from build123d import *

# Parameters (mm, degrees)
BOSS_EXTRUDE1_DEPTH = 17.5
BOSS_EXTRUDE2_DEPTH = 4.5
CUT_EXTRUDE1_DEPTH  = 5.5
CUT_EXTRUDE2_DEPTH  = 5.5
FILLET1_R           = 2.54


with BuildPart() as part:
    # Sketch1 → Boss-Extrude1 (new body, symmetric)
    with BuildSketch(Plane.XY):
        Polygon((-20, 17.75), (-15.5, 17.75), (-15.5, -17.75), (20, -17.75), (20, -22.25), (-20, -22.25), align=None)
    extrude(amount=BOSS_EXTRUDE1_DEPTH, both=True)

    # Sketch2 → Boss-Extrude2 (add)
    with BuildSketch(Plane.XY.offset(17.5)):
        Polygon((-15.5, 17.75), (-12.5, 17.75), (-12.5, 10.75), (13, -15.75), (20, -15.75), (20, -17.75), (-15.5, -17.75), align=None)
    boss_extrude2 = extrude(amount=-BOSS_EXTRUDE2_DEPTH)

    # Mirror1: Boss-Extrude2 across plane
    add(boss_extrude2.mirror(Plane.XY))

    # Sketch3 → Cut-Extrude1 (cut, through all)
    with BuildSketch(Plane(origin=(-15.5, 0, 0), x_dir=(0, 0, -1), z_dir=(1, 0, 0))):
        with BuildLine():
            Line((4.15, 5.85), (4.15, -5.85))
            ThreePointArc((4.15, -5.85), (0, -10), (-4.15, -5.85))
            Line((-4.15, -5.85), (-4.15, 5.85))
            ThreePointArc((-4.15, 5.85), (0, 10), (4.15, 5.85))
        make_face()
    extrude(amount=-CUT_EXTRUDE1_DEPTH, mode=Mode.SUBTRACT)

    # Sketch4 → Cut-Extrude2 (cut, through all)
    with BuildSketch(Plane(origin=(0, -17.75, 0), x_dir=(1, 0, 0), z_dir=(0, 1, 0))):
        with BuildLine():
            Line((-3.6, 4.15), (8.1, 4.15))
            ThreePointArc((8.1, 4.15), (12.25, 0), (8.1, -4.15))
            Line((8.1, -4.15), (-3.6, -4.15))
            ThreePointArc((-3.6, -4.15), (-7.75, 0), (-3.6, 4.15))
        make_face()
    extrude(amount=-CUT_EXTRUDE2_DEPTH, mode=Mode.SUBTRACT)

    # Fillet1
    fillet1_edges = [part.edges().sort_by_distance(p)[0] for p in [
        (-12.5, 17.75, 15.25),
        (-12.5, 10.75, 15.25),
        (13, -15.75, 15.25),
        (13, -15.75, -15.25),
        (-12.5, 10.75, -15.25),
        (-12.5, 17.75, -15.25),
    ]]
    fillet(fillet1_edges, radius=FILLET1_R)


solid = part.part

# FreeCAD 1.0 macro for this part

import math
import FreeCAD as App
import Part
import Sketcher

V = App.Vector
Q = App.Units.Quantity


def edges_at(feature, points):
    """Names of the edges that pass closest to the given points."""
    edges = feature.Shape.Edges
    near = lambda p: min(range(len(edges)), key=lambda i: edges[i].distToShape(Part.Vertex(*p))[0])
    return sorted({f"Edge{near(p) + 1}" for p in points})


def add_polygon(sketch, points):
    """Adds a closed chain of lines whose ends are joined by coincident constraints."""
    first, n = sketch.GeometryCount, len(points)
    for a, b in zip(points, points[1:] + points[:1]):
        sketch.addGeometry(Part.LineSegment(App.Vector(*a, 0), App.Vector(*b, 0)), False)
    for i in range(n):
        sketch.addConstraint(Sketcher.Constraint("Coincident", first + i, 2, first + (i + 1) % n, 1))

doc = App.newDocument("Part")
body = doc.addObject("PartDesign::Body", "Body")

# Sketch on XY plane
sketch1 = doc.addObject("Sketcher::SketchObject", "Sketch")
body.addObject(sketch1)
sketch1.AttachmentSupport = (doc.XY_Plane, [""])
sketch1.MapMode = "FlatFace"
add_polygon(sketch1, [(-15.5, 17.8), (-20, 17.8), (-20, -22.2), (20, -22.2), (20, -17.8), (-15.5, -17.8)])  # lines 0-5
sketch1.addConstraint(Sketcher.Constraint("Horizontal", 0))
sketch1.addConstraint(Sketcher.Constraint("Vertical", 1))
sketch1.addConstraint(Sketcher.Constraint("Horizontal", 2))
sketch1.addConstraint(Sketcher.Constraint("Vertical", 3))
sketch1.addConstraint(Sketcher.Constraint("Horizontal", 4))
sketch1.addConstraint(Sketcher.Constraint("Vertical", 5))
sketch1.addConstraint(Sketcher.Constraint("Symmetric", 0, 2, 3, 2, -1, 1))
sketch1.addConstraint(Sketcher.Constraint("Equal", 2, 1))
sketch1.addConstraint(Sketcher.Constraint("Equal", 0, 3))
sketch1.addConstraint(Sketcher.Constraint("DistanceX", 2, 1, 2, 2, Q("40 mm")))
sketch1.addConstraint(Sketcher.Constraint("DistanceX", 0, 2, 0, 1, Q("4.5 mm")))
pad1 = doc.addObject("PartDesign::Pad", "Pad")
body.addObject(pad1)
pad1.Profile = sketch1
pad1.Length = 35
pad1.Midplane = True

# Sketch on XY plane
sketch2 = doc.addObject("Sketcher::SketchObject", "Sketch001")
body.addObject(sketch2)
sketch2.AttachmentSupport = (doc.XY_Plane, [""])
sketch2.MapMode = "FlatFace"
sketch2.AttachmentOffset = App.Placement(V(0, 0, 17.5), App.Rotation())
add_polygon(sketch2, [(-12.5, 17.8), (-15.5, 17.8), (-15.5, -17.8), (20, -17.8), (20, -15.8), (13, -15.8), (-12.5, 10.8)])  # lines 0-6
sketch2.addConstraint(Sketcher.Constraint("Horizontal", 0))
sketch2.addConstraint(Sketcher.Constraint("Vertical", 1))
sketch2.addConstraint(Sketcher.Constraint("Horizontal", 2))
sketch2.addConstraint(Sketcher.Constraint("Vertical", 3))
sketch2.addConstraint(Sketcher.Constraint("Horizontal", 4))
sketch2.addConstraint(Sketcher.Constraint("Vertical", 6))
sketch2.addConstraint(Sketcher.Constraint("Equal", 2, 1))
sketch2.addConstraint(Sketcher.Constraint("Equal", 4, 6))
sketch2.addConstraint(Sketcher.Constraint("DistanceX", 0, 2, 0, 1, Q("3 mm")))
sketch2.addConstraint(Sketcher.Constraint("DistanceX", 4, 2, 4, 1, Q("7 mm")))
sketch2.addConstraint(Sketcher.Constraint("DistanceY", 3, 1, 3, 2, Q("2 mm")))
sketch2.addConstraint(Sketcher.Constraint("DistanceX", 2, 1, 2, 2, Q("35.5 mm")))
sketch2.addConstraint(Sketcher.Constraint("DistanceX", -1, 1, 2, 2, Q("20 mm")))
sketch2.addConstraint(Sketcher.Constraint("DistanceY", -1, 1, 0, 2, Q("17.75 mm")))
pad2 = doc.addObject("PartDesign::Pad", "Pad001")
body.addObject(pad2)
pad2.Profile = sketch2
pad2.Length = 4.5
pad2.Reversed = True
doc.recompute()

mirrored = doc.addObject("PartDesign::Mirrored", "Mirrored")
body.addObject(mirrored)
mirrored.Originals = [pad2]
mirrored.MirrorPlane = (doc.XY_Plane, [""])
body.Tip = mirrored

# Sketch on YZ plane
sketch3 = doc.addObject("Sketcher::SketchObject", "Sketch002")
body.addObject(sketch3)
sketch3.AttachmentSupport = (doc.YZ_Plane, [""])
sketch3.MapMode = "FlatFace"
sketch3.AttachmentOffset = App.Placement(V(0, 0, -15.5), App.Rotation())
sketch3.addGeometry(Part.LineSegment(V(-5.8, -4.2, 0), V(5.8, -4.2, 0)), False)
sketch3.addGeometry(Part.ArcOfCircle(Part.Circle(V(5.8, 0, 0), V(0, 0, 1), 4.2), math.radians(-90), math.radians(90)), False)
sketch3.addGeometry(Part.LineSegment(V(5.8, 4.2, 0), V(-5.8, 4.2, 0)), False)
sketch3.addGeometry(Part.ArcOfCircle(Part.Circle(V(-5.8, 0, 0), V(0, 0, 1), 4.2), math.radians(90), math.radians(270)), False)
sketch3.addConstraint(Sketcher.Constraint("Tangent", 0, 2, 1, 1))
sketch3.addConstraint(Sketcher.Constraint("Tangent", 1, 2, 2, 1))
sketch3.addConstraint(Sketcher.Constraint("Tangent", 2, 2, 3, 1))
sketch3.addConstraint(Sketcher.Constraint("Tangent", 3, 2, 0, 1))
sketch3.addConstraint(Sketcher.Constraint("Horizontal", 0))
sketch3.addConstraint(Sketcher.Constraint("Horizontal", 2))
sketch3.addConstraint(Sketcher.Constraint("Symmetric", 1, 3, 3, 3, -1, 1))
sketch3.addConstraint(Sketcher.Constraint("Radius", 1, Q("4.15 mm")))
sketch3.addConstraint(Sketcher.Constraint("DistanceX", 0, 1, 0, 2, Q("11.7 mm")))
pocket1 = doc.addObject("PartDesign::Pocket", "Pocket")
body.addObject(pocket1)
pocket1.Profile = sketch3
pocket1.Type = "ThroughAll"

# Sketch on XZ plane
sketch4 = doc.addObject("Sketcher::SketchObject", "Sketch003")
body.addObject(sketch4)
sketch4.AttachmentSupport = (doc.XZ_Plane, [""])
sketch4.MapMode = "FlatFace"
sketch4.AttachmentOffset = App.Placement(V(0, 0, 17.75), App.Rotation())
sketch4.addGeometry(Part.LineSegment(V(8.1, -4.2, 0), V(-3.6, -4.2, 0)), False)
sketch4.addGeometry(Part.ArcOfCircle(Part.Circle(V(-3.6, 0, 0), V(0, 0, 1), 4.2), math.radians(90), math.radians(270)), False)
sketch4.addGeometry(Part.LineSegment(V(-3.6, 4.2, 0), V(8.1, 4.2, 0)), False)
sketch4.addGeometry(Part.ArcOfCircle(Part.Circle(V(8.1, 0, 0), V(0, 0, 1), 4.2), math.radians(-90), math.radians(90)), False)
sketch4.addConstraint(Sketcher.Constraint("Tangent", 0, 2, 1, 2))
sketch4.addConstraint(Sketcher.Constraint("Tangent", 1, 1, 2, 1))
sketch4.addConstraint(Sketcher.Constraint("Tangent", 2, 2, 3, 2))
sketch4.addConstraint(Sketcher.Constraint("Tangent", 3, 1, 0, 1))
sketch4.addConstraint(Sketcher.Constraint("Horizontal", 0))
sketch4.addConstraint(Sketcher.Constraint("Horizontal", 2))
sketch4.addConstraint(Sketcher.Constraint("PointOnObject", 1, 3, -1))
sketch4.addConstraint(Sketcher.Constraint("Radius", 1, Q("4.15 mm")))
sketch4.addConstraint(Sketcher.Constraint("DistanceX", 0, 2, 0, 1, Q("11.7 mm")))
sketch4.addConstraint(Sketcher.Constraint("DistanceX", 1, 3, -1, 1, Q("3.6 mm")))
pocket2 = doc.addObject("PartDesign::Pocket", "Pocket001")
body.addObject(pocket2)
pocket2.Profile = sketch4
pocket2.Type = "ThroughAll"
pocket2.Reversed = True
doc.recompute()

fillet = doc.addObject("PartDesign::Fillet", "Fillet")
body.addObject(fillet)
fillet.Base = (pocket2, edges_at(pocket2, [
    (-12.5, 17.75, 15.25),
    (-12.5, 10.75, 15.25),
    (13, -15.75, 15.25),
    (13, -15.75, -15.25),
    (-12.5, 10.75, -15.25),
    (-12.5, 17.75, -15.25),
]))
fillet.Radius = 2.54

doc.recompute()
